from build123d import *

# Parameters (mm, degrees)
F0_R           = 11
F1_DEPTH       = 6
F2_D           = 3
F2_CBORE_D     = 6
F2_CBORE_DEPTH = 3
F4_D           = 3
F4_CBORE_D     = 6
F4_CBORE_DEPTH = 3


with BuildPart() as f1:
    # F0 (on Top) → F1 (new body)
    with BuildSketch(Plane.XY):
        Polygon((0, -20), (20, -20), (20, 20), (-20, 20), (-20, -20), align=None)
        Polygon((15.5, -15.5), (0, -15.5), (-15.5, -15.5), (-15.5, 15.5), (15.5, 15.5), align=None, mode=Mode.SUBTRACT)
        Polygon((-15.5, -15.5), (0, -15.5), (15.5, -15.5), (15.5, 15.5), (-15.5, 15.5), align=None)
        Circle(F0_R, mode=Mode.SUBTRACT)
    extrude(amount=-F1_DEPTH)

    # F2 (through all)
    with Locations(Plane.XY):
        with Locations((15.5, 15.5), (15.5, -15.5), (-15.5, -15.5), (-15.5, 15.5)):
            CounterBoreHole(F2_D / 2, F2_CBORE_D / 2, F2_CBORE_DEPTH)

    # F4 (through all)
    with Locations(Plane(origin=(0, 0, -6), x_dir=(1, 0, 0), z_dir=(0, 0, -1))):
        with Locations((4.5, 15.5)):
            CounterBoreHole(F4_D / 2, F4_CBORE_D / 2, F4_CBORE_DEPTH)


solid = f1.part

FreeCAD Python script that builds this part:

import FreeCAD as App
import Part
import Sketcher
Q = App.Units.Quantity


def add_polygon(sketch, points):
    """Adds a closed chain of lines whose ends are joined by coincident constraints."""
    first, n = sketch.GeometryCount, len(points)
    for a, b in zip(points, points[1:] + points[:1]):
        sketch.addGeometry(Part.LineSegment(App.Vector(*a, 0), App.Vector(*b, 0)), False)
    for i in range(n):
        sketch.addConstraint(Sketcher.Constraint("Coincident", first + i, 2, first + (i + 1) % n, 1))

doc = App.newDocument("Part")
body = doc.addObject("PartDesign::Body", "Body")

# Sketch on XY plane
sketch1 = body.newObject("Sketcher::SketchObject", "Sketch")
sketch1.AttachmentSupport = (doc.getObject("XY_Plane"), [""])
sketch1.MapMode = "FlatFace"
add_polygon(sketch1, [(20, -20), (20, 20), (-20, 20), (-20, -20)])  # lines 0-3
sketch1.addGeometry(Part.Circle(App.Vector(0, 0, 0), App.Vector(0, 0, 1), 11), False)  # 4
sketch1.addConstraint([
    Sketcher.Constraint("Vertical", 0),
    Sketcher.Constraint("Horizontal", 1),
    Sketcher.Constraint("Vertical", 2),
    Sketcher.Constraint("Horizontal", 3),
    Sketcher.Constraint("Coincident", 4, 3, -1, 1),
    Sketcher.Constraint("Symmetric", 0, 2, 2, 2, -1, 1),
    Sketcher.Constraint("Equal", 3, 0),
    Sketcher.Constraint("Diameter", 4, Q("22 mm")),
    Sketcher.Constraint("DistanceX", 1, 2, 1, 1, Q("40 mm")),
])
pad1 = body.newObject("PartDesign::Pad", "Pad")
pad1.Profile = sketch1
pad1.Length = 6
pad1.Reversed = True

# Sketch on XY plane
sketch2 = body.newObject("Sketcher::SketchObject", "Sketch001")
sketch2.AttachmentSupport = (doc.getObject("XY_Plane"), [""])
sketch2.MapMode = "FlatFace"
sketch2.addGeometry([
    Part.Circle(App.Vector(15.5, 15.5, 0), App.Vector(0, 0, 1), 1.5),
    Part.Circle(App.Vector(15.5, -15.5, 0), App.Vector(0, 0, 1), 1.5),
    Part.Circle(App.Vector(-15.5, -15.5, 0), App.Vector(0, 0, 1), 1.5),
    Part.Circle(App.Vector(-15.5, 15.5, 0), App.Vector(0, 0, 1), 1.5),
], False)
sketch2.addConstraint([
    Sketcher.Constraint("Equal", 0, 1),
    Sketcher.Constraint("Equal", 1, 2),
    Sketcher.Constraint("Equal", 2, 3),
    Sketcher.Constraint("Symmetric", 0, 3, 2, 3, -1, 1),
    Sketcher.Constraint("Symmetric", 1, 3, 3, 3, -1, 1),
    Sketcher.Constraint("Symmetric", 1, 3, 2, 3, -2),
    Sketcher.Constraint("Diameter", 0, Q("3 mm")),
    Sketcher.Constraint("DistanceY", 1, 3, 0, 3, Q("31 mm")),
    Sketcher.Constraint("DistanceX", 2, 3, 1, 3, Q("31 mm")),
])
doc.recompute()
hole = body.newObject("PartDesign::Hole", "Hole")
hole.Profile = sketch2
hole.ThreadType = "None"
hole.Diameter = 3
hole.DepthType = "ThroughAll"
hole.HoleCutType = "Counterbore"
hole.HoleCutDiameter = 6
hole.HoleCutDepth = 3

# Sketch on XY plane
sketch3 = body.newObject("Sketcher::SketchObject", "Sketch002")
sketch3.AttachmentSupport = (doc.getObject("XY_Plane"), [""])
sketch3.MapMode = "FlatFace"
sketch3.AttachmentOffset = App.Placement(App.Vector(0, 0, -6), App.Rotation())
sketch3.addGeometry(Part.Circle(App.Vector(4.5, -15.5, 0), App.Vector(0, 0, 1), 1.5), False)
sketch3.addConstraint([
    Sketcher.Constraint("Diameter", 0, Q("3 mm")),
    Sketcher.Constraint("DistanceX", -1, 1, 0, 3, Q("4.5 mm")),
    Sketcher.Constraint("DistanceY", 0, 3, -1, 1, Q("15.5 mm")),
])
doc.recompute()
hole2 = body.newObject("PartDesign::Hole", "Hole001")
hole2.Profile = sketch3
hole2.ThreadType = "None"
hole2.Diameter = 3
hole2.DepthType = "ThroughAll"
hole2.HoleCutType = "Counterbore"
hole2.HoleCutDiameter = 6
hole2.HoleCutDepth = 3
hole2.Reversed = True

doc.recompute()
